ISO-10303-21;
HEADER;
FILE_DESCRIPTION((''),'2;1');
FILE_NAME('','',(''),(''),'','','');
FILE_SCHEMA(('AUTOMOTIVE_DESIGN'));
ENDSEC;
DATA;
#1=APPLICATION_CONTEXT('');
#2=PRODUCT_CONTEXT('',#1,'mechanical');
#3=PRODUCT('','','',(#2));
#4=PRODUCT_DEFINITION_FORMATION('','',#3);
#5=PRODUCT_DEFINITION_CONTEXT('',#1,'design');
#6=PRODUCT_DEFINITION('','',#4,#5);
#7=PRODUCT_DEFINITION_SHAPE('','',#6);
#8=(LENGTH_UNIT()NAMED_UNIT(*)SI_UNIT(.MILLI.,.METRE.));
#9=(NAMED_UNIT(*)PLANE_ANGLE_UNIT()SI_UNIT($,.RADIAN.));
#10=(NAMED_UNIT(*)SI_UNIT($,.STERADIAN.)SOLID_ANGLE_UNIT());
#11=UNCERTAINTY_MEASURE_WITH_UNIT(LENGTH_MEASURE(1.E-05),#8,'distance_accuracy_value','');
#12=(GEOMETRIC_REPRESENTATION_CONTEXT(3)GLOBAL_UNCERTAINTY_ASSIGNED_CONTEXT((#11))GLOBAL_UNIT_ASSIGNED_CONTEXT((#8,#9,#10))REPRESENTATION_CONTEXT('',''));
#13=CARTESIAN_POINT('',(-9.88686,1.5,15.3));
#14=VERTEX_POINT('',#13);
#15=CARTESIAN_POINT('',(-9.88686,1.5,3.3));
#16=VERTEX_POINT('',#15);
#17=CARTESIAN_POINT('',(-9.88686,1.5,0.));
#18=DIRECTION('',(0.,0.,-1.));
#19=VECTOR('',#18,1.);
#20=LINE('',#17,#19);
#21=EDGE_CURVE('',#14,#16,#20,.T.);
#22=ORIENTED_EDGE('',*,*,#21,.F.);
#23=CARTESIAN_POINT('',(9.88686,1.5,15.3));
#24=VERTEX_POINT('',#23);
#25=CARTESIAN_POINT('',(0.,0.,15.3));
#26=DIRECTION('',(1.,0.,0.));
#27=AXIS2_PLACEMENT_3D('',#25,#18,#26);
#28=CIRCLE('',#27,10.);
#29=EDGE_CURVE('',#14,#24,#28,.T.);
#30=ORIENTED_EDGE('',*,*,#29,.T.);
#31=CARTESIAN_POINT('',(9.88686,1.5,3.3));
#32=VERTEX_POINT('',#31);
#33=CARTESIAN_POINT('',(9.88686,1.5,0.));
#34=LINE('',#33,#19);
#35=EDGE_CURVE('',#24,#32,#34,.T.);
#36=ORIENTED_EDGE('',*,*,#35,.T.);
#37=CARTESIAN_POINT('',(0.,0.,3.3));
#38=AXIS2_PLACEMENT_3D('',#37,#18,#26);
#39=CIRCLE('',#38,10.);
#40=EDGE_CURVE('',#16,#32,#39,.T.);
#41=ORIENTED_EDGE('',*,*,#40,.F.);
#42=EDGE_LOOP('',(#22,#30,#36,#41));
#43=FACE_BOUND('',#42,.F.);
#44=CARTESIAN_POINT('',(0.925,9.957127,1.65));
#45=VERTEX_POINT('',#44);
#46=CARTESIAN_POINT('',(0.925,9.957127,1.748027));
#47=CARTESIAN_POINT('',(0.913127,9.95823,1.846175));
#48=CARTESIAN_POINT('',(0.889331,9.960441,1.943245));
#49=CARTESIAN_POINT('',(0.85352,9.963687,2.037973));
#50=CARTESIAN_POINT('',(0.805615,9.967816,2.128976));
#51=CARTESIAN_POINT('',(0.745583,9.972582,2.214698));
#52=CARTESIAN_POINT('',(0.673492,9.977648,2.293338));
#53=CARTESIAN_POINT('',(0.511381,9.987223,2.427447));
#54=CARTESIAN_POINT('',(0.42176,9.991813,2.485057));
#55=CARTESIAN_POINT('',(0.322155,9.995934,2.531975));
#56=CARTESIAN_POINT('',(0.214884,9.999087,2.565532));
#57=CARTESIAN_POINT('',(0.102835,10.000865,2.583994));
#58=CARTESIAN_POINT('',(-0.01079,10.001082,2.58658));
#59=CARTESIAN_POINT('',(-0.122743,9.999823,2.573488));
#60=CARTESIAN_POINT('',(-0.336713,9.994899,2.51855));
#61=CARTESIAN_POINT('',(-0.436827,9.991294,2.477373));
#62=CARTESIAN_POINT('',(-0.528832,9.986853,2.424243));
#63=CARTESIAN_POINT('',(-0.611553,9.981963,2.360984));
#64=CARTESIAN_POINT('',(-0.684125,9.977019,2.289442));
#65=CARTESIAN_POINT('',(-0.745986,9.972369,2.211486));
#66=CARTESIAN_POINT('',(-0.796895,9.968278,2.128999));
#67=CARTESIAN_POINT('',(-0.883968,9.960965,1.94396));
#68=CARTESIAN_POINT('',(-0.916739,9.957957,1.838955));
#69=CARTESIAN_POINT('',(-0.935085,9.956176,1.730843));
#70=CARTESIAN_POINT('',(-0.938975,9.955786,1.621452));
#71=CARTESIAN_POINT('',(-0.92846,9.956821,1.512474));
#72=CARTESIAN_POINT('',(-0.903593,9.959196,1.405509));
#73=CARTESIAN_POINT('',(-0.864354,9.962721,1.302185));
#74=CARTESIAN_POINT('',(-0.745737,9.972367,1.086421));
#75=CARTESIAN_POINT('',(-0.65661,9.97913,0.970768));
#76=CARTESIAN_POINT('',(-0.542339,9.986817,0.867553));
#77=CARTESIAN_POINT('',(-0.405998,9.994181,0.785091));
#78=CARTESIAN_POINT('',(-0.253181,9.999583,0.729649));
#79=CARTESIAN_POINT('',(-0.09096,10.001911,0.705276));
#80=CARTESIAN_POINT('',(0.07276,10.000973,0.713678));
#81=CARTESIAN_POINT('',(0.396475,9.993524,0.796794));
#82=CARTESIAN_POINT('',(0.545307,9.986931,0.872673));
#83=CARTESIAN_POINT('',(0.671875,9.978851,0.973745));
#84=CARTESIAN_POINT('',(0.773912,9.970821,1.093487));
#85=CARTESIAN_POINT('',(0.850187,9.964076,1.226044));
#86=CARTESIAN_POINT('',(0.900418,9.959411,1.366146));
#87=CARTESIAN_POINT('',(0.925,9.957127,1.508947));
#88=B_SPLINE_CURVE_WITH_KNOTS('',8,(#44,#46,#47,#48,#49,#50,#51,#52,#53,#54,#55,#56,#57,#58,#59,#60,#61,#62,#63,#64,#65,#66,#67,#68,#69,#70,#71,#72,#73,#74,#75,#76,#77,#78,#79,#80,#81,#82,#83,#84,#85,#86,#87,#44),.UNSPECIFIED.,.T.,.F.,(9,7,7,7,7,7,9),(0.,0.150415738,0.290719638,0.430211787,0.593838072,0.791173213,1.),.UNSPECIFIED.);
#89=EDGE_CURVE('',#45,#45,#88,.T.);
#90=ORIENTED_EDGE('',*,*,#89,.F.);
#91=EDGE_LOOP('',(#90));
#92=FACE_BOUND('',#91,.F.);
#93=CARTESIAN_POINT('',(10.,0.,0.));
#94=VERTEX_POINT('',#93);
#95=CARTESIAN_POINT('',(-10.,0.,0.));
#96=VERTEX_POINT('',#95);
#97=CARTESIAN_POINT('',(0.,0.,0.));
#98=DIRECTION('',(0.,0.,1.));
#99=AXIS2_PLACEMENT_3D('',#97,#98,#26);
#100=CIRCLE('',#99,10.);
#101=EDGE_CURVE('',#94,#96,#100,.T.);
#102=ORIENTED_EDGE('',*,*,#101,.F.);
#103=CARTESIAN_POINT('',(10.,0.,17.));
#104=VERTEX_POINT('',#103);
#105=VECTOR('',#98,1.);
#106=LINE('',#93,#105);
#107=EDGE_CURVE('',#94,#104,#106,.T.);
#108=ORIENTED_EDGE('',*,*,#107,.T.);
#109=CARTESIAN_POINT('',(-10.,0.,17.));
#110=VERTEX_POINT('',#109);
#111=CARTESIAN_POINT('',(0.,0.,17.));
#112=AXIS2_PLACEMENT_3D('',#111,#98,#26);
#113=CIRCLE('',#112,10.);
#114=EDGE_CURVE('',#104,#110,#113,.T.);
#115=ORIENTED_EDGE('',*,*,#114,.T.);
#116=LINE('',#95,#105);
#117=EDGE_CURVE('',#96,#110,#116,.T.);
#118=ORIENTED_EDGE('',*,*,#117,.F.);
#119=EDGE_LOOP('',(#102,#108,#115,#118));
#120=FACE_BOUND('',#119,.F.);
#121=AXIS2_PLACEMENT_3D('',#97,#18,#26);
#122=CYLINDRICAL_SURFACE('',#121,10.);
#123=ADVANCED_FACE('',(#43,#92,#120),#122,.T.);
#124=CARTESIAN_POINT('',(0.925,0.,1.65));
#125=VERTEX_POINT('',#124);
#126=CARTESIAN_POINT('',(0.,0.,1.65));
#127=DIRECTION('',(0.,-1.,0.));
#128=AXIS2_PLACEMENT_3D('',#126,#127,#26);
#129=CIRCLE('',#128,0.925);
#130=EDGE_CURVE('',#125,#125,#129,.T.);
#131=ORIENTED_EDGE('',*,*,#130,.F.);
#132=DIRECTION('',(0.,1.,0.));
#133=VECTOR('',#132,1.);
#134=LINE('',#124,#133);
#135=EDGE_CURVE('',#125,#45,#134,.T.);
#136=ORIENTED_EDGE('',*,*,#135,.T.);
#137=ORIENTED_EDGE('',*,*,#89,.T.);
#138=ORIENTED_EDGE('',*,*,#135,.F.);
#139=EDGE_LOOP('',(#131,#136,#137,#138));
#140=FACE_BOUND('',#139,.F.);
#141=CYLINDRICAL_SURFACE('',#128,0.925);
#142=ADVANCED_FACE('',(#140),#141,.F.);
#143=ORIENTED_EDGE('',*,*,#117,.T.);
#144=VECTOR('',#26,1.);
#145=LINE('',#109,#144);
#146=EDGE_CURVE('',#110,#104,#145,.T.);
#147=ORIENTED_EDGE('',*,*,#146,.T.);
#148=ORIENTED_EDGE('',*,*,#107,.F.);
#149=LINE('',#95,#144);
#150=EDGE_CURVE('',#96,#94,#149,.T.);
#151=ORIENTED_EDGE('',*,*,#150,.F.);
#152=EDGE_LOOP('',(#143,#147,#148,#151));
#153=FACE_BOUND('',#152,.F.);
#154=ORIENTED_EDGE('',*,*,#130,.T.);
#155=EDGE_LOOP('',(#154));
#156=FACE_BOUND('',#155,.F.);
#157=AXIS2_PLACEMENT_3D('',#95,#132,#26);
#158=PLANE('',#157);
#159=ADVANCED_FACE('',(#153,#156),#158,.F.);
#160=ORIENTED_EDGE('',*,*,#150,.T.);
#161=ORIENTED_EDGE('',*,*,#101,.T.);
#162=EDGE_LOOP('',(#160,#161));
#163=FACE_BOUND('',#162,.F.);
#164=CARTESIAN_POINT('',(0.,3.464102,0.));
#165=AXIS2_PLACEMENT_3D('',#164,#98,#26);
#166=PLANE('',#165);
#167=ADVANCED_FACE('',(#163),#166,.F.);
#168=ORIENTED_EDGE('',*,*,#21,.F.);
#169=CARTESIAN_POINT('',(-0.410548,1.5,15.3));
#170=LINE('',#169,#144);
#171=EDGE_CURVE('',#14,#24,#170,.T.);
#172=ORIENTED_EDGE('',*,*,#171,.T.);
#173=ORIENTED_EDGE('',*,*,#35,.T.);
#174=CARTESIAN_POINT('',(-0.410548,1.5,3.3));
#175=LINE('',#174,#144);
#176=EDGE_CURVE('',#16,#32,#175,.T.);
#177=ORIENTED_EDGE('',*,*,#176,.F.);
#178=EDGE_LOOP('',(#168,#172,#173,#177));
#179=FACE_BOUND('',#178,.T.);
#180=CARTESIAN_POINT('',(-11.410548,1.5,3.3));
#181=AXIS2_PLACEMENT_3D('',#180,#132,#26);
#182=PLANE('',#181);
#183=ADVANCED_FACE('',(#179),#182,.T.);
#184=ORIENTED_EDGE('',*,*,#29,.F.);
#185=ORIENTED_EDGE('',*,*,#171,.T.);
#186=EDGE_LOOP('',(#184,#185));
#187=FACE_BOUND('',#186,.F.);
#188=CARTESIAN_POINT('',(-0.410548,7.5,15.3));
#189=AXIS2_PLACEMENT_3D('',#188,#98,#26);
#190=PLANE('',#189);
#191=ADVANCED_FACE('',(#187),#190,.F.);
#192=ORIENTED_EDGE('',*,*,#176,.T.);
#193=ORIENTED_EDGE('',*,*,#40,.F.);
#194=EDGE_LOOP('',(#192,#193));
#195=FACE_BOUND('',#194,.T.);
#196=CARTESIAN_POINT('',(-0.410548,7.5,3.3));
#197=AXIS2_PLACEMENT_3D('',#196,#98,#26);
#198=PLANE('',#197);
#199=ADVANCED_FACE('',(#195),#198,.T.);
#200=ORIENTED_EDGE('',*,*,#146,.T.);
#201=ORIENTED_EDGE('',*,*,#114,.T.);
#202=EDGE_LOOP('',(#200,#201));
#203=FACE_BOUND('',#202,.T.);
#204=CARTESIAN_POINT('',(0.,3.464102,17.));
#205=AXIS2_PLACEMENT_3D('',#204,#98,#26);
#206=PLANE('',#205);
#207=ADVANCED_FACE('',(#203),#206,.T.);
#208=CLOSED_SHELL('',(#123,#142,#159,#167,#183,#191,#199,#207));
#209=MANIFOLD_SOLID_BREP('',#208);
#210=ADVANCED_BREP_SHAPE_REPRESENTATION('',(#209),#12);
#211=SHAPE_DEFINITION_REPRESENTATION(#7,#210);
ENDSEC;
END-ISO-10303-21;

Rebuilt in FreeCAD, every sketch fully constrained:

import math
import FreeCAD as App
import Part
import Sketcher

V = App.Vector
Q = App.Units.Quantity


def add_polygon(sketch, points):
    """Adds a closed chain of lines whose ends are joined by coincident constraints."""
    first, n = sketch.GeometryCount, len(points)
    for a, b in zip(points, points[1:] + points[:1]):
        sketch.addGeometry(Part.LineSegment(App.Vector(*a, 0), App.Vector(*b, 0)), False)
    for i in range(n):
        sketch.addConstraint(Sketcher.Constraint("Coincident", first + i, 2, first + (i + 1) % n, 1))

doc = App.newDocument("Part")
body = doc.addObject("PartDesign::Body", "Body")

# Sketch on XY plane
sketch1 = body.newObject("Sketcher::SketchObject", "Sketch")
sketch1.AttachmentSupport = (doc.getObject("XY_Plane"), [""])
sketch1.MapMode = "FlatFace"
sketch1.addGeometry(Part.LineSegment(V(-10, 0, 0), V(10, 0, 0)), False)
sketch1.addGeometry(Part.ArcOfCircle(Part.Circle(V(0, 0, 0), V(0, 0, 1), 10), math.radians(0), math.radians(180)), False)
sketch1.addConstraint(Sketcher.Constraint("Coincident", 0, 1, 1, 2))
sketch1.addConstraint(Sketcher.Constraint("Coincident", 1, 1, 0, 2))
sketch1.addConstraint(Sketcher.Constraint("Horizontal", 0))
sketch1.addConstraint(Sketcher.Constraint("Coincident", 1, 3, -1, 1))
sketch1.addConstraint(Sketcher.Constraint("PointOnObject", 0, 1, -1))
sketch1.addConstraint(Sketcher.Constraint("Radius", 1, Q("10 mm")))
pad1 = body.newObject("PartDesign::Pad", "Pad")
pad1.Profile = sketch1
pad1.Length = 17

# Sketch on XY plane
sketch2 = body.newObject("Sketcher::SketchObject", "Sketch001")
sketch2.AttachmentSupport = (doc.getObject("XY_Plane"), [""])
sketch2.MapMode = "FlatFace"
sketch2.AttachmentOffset = App.Placement(V(0, 0, 3.3), App.Rotation())
add_polygon(sketch2, [(-11, 14), (-11, 2), (11, 2), (11, 14)])  # lines 0-3
sketch2.addConstraint(Sketcher.Constraint("Vertical", 0))
sketch2.addConstraint(Sketcher.Constraint("Horizontal", 1))
sketch2.addConstraint(Sketcher.Constraint("Vertical", 2))
sketch2.addConstraint(Sketcher.Constraint("Horizontal", 3))
sketch2.addConstraint(Sketcher.Constraint("DistanceX", 1, 1, 1, 2, Q("22 mm")))
sketch2.addConstraint(Sketcher.Constraint("DistanceY", 0, 2, 0, 1, Q("12 mm")))
sketch2.addConstraint(Sketcher.Constraint("DistanceY", -1, 1, 0, 2, Q("1.5 mm")))
sketch2.addConstraint(Sketcher.Constraint("DistanceX", 0, 2, -1, 1, Q("11.410548 mm")))
pocket1 = body.newObject("PartDesign::Pocket", "Pocket")
pocket1.Profile = sketch2
pocket1.Length = 12
pocket1.Reversed = True

# Sketch on XZ plane
sketch3 = body.newObject("Sketcher::SketchObject", "Sketch002")
sketch3.AttachmentSupport = (doc.getObject("XZ_Plane"), [""])
sketch3.MapMode = "FlatFace"
sketch3.addGeometry(Part.Circle(V(0, 1.6, 0), V(0, 0, 1), 0.9), False)
sketch3.addConstraint(Sketcher.Constraint("PointOnObject", 0, 3, -2))
sketch3.addConstraint(Sketcher.Constraint("Diameter", 0, Q("1.85 mm")))
sketch3.addConstraint(Sketcher.Constraint("DistanceY", -1, 1, 0, 3, Q("1.65 mm")))
pocket2 = body.newObject("PartDesign::Pocket", "Pocket001")
pocket2.Profile = sketch3
pocket2.Length = 12

doc.recompute()
